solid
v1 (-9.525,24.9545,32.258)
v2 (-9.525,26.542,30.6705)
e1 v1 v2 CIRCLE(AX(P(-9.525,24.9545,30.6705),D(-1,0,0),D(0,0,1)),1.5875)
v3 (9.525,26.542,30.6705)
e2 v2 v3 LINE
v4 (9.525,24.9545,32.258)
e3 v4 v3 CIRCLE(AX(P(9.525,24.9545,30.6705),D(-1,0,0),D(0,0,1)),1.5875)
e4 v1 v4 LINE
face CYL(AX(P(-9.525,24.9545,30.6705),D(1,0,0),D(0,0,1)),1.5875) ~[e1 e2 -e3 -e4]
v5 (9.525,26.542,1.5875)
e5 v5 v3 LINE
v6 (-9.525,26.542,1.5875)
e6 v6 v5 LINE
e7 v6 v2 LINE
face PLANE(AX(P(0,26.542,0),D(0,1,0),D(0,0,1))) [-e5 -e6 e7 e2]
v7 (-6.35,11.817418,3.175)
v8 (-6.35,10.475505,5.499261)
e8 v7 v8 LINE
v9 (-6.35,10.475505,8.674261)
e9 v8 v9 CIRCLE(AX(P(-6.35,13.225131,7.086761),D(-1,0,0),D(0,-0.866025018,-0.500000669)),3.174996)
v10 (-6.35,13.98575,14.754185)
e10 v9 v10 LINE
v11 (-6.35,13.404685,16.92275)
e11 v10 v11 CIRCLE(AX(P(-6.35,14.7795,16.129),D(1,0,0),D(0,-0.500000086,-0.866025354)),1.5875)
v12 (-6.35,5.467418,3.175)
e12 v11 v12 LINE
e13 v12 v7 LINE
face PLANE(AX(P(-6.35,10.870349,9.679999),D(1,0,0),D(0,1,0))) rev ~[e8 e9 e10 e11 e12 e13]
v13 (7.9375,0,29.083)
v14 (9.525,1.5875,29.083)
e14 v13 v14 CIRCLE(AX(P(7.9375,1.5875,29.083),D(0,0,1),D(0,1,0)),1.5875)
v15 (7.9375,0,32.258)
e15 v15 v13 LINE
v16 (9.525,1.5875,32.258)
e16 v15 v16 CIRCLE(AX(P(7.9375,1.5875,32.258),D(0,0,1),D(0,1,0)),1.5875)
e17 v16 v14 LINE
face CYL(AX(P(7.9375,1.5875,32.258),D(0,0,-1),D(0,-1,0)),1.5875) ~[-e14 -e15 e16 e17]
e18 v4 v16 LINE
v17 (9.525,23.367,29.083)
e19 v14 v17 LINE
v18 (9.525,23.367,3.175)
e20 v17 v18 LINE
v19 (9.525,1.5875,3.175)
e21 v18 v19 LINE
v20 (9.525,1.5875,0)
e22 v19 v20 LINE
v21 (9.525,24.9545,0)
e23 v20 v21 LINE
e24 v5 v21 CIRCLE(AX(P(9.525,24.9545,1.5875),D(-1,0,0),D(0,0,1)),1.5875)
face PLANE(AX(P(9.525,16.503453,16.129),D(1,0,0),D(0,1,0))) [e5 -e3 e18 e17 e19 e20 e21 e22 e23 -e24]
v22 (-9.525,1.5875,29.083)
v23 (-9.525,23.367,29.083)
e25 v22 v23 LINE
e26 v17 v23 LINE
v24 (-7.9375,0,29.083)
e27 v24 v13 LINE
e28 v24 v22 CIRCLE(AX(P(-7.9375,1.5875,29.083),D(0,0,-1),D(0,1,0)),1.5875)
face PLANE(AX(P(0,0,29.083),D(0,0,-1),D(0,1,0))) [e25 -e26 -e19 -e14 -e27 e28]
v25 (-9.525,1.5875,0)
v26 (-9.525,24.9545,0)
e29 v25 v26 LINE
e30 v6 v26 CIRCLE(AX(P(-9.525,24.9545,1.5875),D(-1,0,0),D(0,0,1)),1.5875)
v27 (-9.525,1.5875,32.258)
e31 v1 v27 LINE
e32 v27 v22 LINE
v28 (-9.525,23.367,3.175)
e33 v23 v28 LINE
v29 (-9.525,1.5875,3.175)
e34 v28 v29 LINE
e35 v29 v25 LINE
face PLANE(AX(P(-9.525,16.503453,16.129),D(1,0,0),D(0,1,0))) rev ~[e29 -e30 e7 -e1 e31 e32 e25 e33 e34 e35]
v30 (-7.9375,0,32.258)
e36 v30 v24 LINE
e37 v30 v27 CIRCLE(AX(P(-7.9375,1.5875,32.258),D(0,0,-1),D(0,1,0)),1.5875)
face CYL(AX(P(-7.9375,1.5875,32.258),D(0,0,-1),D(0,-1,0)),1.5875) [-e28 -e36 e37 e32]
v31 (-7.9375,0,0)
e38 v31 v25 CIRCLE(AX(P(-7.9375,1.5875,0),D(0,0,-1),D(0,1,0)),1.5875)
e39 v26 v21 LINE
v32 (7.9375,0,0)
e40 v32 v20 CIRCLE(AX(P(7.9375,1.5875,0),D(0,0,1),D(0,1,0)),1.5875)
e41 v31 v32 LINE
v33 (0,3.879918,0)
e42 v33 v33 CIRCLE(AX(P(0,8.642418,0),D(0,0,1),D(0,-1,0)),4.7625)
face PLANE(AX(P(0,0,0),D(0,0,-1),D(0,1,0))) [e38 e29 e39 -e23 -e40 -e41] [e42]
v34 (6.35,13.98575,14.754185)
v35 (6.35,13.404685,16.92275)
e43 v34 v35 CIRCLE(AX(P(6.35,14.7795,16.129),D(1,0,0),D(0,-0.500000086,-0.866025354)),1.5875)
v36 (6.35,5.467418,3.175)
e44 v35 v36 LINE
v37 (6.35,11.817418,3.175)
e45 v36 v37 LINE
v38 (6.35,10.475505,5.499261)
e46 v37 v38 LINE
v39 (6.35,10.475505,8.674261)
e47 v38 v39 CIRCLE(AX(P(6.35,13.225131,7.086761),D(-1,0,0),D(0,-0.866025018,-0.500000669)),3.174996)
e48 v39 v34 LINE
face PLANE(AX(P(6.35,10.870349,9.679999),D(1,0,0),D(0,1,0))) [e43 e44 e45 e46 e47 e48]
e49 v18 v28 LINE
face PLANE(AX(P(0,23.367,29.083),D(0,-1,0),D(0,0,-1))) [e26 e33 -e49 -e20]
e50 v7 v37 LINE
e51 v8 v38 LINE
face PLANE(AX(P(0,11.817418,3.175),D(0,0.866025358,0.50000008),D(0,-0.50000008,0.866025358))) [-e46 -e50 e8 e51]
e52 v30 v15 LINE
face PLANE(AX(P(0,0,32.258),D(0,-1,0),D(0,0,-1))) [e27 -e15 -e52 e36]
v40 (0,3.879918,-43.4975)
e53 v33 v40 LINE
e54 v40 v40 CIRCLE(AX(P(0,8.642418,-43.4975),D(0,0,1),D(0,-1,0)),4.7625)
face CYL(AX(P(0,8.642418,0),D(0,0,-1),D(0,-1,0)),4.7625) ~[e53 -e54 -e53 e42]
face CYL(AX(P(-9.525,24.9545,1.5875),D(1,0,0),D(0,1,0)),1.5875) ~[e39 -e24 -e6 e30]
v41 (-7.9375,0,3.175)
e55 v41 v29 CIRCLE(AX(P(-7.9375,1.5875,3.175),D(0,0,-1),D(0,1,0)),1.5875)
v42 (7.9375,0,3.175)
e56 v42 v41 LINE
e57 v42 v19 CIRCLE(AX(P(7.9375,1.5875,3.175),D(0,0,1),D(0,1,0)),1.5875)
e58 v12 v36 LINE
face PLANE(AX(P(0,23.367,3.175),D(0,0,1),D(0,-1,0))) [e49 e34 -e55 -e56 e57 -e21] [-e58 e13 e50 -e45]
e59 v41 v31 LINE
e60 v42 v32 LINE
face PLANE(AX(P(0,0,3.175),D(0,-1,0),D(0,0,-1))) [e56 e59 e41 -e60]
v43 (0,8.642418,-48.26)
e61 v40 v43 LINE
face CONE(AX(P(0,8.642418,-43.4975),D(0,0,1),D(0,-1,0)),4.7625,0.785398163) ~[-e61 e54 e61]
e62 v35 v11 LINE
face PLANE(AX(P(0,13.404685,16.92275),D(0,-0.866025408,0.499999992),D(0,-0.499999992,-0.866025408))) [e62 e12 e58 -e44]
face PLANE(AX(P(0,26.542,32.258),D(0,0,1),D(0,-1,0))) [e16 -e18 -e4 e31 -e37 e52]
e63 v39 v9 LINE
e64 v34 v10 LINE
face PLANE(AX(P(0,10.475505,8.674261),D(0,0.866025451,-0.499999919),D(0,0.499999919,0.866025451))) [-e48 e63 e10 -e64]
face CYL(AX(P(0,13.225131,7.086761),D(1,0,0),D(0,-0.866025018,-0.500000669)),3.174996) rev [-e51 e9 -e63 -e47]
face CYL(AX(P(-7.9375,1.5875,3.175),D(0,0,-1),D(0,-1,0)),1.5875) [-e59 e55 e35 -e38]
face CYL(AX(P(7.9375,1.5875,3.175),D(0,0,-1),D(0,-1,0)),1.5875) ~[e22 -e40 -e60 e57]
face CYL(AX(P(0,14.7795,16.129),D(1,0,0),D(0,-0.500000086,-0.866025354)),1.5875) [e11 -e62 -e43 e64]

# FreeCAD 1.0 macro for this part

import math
import FreeCAD as App
import Part
import Sketcher
Q = App.Units.Quantity


def edges_at(feature, points):
    """Names of the edges that pass closest to the given points."""
    edges = feature.Shape.Edges
    near = lambda p: min(range(len(edges)), key=lambda i: edges[i].distToShape(Part.Vertex(*p))[0])
    return sorted({f"Edge{near(p) + 1}" for p in points})

doc = App.newDocument("Part")
body = doc.addObject("PartDesign::Body", "Body")

# Sketch on YZ plane
sketch1 = body.newObject("Sketcher::SketchObject", "Sketch")
sketch1.AttachmentSupport = (doc.getObject("YZ_Plane"), [""])
sketch1.MapMode = "FlatFace"
sketch1.addGeometry([
    Part.LineSegment(App.Vector(0, 3.175, 0), App.Vector(0, 0, 0)),  # 0
    Part.LineSegment(App.Vector(0, 0, 0), App.Vector(26.542, 0, 0)),  # 1
    Part.LineSegment(App.Vector(26.542, 0, 0), App.Vector(26.542, 32.258, 0)),  # 2
    Part.LineSegment(App.Vector(26.542, 32.258, 0), App.Vector(0, 32.258, 0)),  # 3
    Part.LineSegment(App.Vector(0, 32.258, 0), App.Vector(0, 29.083, 0)),  # 4
    Part.LineSegment(App.Vector(0, 29.083, 0), App.Vector(23.367, 29.083, 0)),  # 5
    Part.LineSegment(App.Vector(23.367, 29.083, 0), App.Vector(23.367, 3.175, 0)),  # 6
    Part.LineSegment(App.Vector(23.367, 3.175, 0), App.Vector(0, 3.175, 0)),  # 7
], False)
sketch1.addConstraint([
    Sketcher.Constraint("Coincident", 0, 2, 1, 1),
    Sketcher.Constraint("Coincident", 1, 2, 2, 1),
    Sketcher.Constraint("Coincident", 2, 2, 3, 1),
    Sketcher.Constraint("Coincident", 3, 2, 4, 1),
    Sketcher.Constraint("Coincident", 4, 2, 5, 1),
    Sketcher.Constraint("Coincident", 5, 2, 6, 1),
    Sketcher.Constraint("Coincident", 6, 2, 7, 1),
    Sketcher.Constraint("Coincident", 7, 2, 0, 1),
    Sketcher.Constraint("Vertical", 0),
    Sketcher.Constraint("Horizontal", 1),
    Sketcher.Constraint("Vertical", 2),
    Sketcher.Constraint("Horizontal", 3),
    Sketcher.Constraint("Vertical", 4),
    Sketcher.Constraint("Horizontal", 5),
    Sketcher.Constraint("Vertical", 6),
    Sketcher.Constraint("Horizontal", 7),
    Sketcher.Constraint("Coincident", 0, 2, -1, 1),
    Sketcher.Constraint("PointOnObject", 3, 2, -2),
    Sketcher.Constraint("Equal", 0, 4),
    Sketcher.Constraint("DistanceY", 2, 1, 2, 2, Q("1.27 in")),
    Sketcher.Constraint("DistanceY", 6, 2, 6, 1, Q("1.02 in")),
    Sketcher.Constraint("DistanceX", 5, 2, 2, 2, Q("0.125 in")),
    Sketcher.Constraint("DistanceX", 1, 1, 1, 2, Q("26.542 mm")),
])
pad1 = body.newObject("PartDesign::Pad", "Pad")
pad1.Profile = sketch1
pad1.Length = Q("0.75 in")
pad1.Midplane = True
doc.recompute()

fillet = body.newObject("PartDesign::Fillet", "Fillet")
fillet.Base = (pad1, edges_at(pad1, [
    (9.525, 0, 30.671),
    (-9.525, 0, 30.671),
    (-9.525, 0, 1.587),
    (9.525, 0, 1.587),
    (0, 26.542, 32.258),
    (0, 26.542, 0),
]))
fillet.Radius = Q("0.0625 in")

# Sketch on YZ plane
sketch2 = body.newObject("Sketcher::SketchObject", "Sketch001")
sketch2.AttachmentSupport = (doc.getObject("YZ_Plane"), [""])
sketch2.MapMode = "FlatFace"
sketch2.addGeometry([
    Part.LineSegment(App.Vector(13.404685, 16.92275, 0), App.Vector(5.467418, 3.175, 0)),  # 0
    Part.LineSegment(App.Vector(5.467418, 3.175, 0), App.Vector(11.817418, 3.175, 0)),  # 1
    Part.LineSegment(App.Vector(11.817418, 3.175, 0), App.Vector(10.475505, 5.499261, 0)),  # 2
    Part.ArcOfCircle(Part.Circle(App.Vector(13.225131, 7.086761, 0), App.Vector(0, 0, 1), 3.174996), math.radians(149.999956), math.radians(210.000044)),  # 3
    Part.LineSegment(App.Vector(10.475505, 8.674261, 0), App.Vector(13.98575, 14.754185, 0)),  # 4
    Part.ArcOfCircle(Part.Circle(App.Vector(14.7795, 16.129, 0), App.Vector(0, 0, 1), 1.5875), math.radians(-120.000006), math.radians(149.999994)),  # 5
], False)
sketch2.addConstraint([
    Sketcher.Constraint("Coincident", 0, 2, 1, 1),
    Sketcher.Constraint("Coincident", 1, 2, 2, 1),
    Sketcher.Constraint("Tangent", 2, 2, 3, 2),
    Sketcher.Constraint("Tangent", 3, 1, 4, 1),
    Sketcher.Constraint("Coincident", 4, 2, 5, 1),
    Sketcher.Constraint("Tangent", 5, 2, 0, 1),
    Sketcher.Constraint("Horizontal", 1),
    Sketcher.Constraint("Parallel", 0, 4),
    Sketcher.Constraint("Vertical", 2, 2, 3, 1),
    Sketcher.Constraint("Angle", 0, Q("-119.999999 deg")),
    Sketcher.Constraint("Radius", 3, Q("0.1249998 in")),
    Sketcher.Constraint("Radius", 5, Q("0.0625 in")),
    Sketcher.Constraint("DistanceX", 1, 1, 1, 2, Q("0.25 in")),
    Sketcher.Constraint("DistanceY", 0, 2, 5, 3, Q("0.51 in")),
    Sketcher.Constraint("DistanceY", -1, 1, 5, 3, Q("0.635 in")),
    Sketcher.Constraint("DistanceX", 4, 2, 5, 3, Q("0.03125 in")),
    Sketcher.Constraint("DistanceX", -1, 1, 5, 3, Q("14.7795 mm")),
])
pad2 = body.newObject("PartDesign::Pad", "Pad001")
pad2.Profile = sketch2
pad2.Length = Q("0.5 in")
pad2.Midplane = True

# Sketch on YZ plane
sketch3 = body.newObject("Sketcher::SketchObject", "Sketch002")
sketch3.AttachmentSupport = (doc.getObject("YZ_Plane"), [""])
sketch3.MapMode = "FlatFace"
sketch3.addGeometry([
    Part.LineSegment(App.Vector(8.642418, 0, 0), App.Vector(3.879918, 0, 0)),
    Part.LineSegment(App.Vector(3.879918, 0, 0), App.Vector(3.879918, -43.4975, 0)),
    Part.LineSegment(App.Vector(3.879918, -43.4975, 0), App.Vector(8.642418, -48.26, 0)),
    Part.LineSegment(App.Vector(8.642418, -48.26, 0), App.Vector(8.642418, 0, 0)),
], False)
sketch3.addGeometry(Part.LineSegment(App.Vector(8.642418, -48.26, 0), App.Vector(8.642418, 0, 0)), True)  # axis
sketch3.addConstraint([
    Sketcher.Constraint("Coincident", 0, 2, 1, 1),
    Sketcher.Constraint("Coincident", 1, 2, 2, 1),
    Sketcher.Constraint("Coincident", 2, 2, 3, 1),
    Sketcher.Constraint("Coincident", 3, 2, 0, 1),
    Sketcher.Constraint("Horizontal", 0),
    Sketcher.Constraint("Vertical", 1),
    Sketcher.Constraint("Vertical", 3),
    Sketcher.Constraint("Vertical", 4),
    Sketcher.Constraint("Coincident", 4, 1, 2, 2),
    Sketcher.Constraint("PointOnObject", 0, 2, -1),
    Sketcher.Constraint("PointOnObject", 4, 2, -1),
    Sketcher.Constraint("DistanceY", 3, 1, 3, 2, Q("1.9 in")),
    Sketcher.Constraint("Angle", 2, Q("-45 deg")),
    Sketcher.Constraint("DistanceX", 0, 2, 0, 1, Q("0.1875 in")),
    Sketcher.Constraint("DistanceX", -1, 1, 0, 2, Q("3.879918 mm")),
])
revolution = body.newObject("PartDesign::Revolution", "Revolution")
revolution.Profile = sketch3
revolution.ReferenceAxis = (sketch3, ["Axis0"])
revolution.Angle = 360

doc.recompute()
